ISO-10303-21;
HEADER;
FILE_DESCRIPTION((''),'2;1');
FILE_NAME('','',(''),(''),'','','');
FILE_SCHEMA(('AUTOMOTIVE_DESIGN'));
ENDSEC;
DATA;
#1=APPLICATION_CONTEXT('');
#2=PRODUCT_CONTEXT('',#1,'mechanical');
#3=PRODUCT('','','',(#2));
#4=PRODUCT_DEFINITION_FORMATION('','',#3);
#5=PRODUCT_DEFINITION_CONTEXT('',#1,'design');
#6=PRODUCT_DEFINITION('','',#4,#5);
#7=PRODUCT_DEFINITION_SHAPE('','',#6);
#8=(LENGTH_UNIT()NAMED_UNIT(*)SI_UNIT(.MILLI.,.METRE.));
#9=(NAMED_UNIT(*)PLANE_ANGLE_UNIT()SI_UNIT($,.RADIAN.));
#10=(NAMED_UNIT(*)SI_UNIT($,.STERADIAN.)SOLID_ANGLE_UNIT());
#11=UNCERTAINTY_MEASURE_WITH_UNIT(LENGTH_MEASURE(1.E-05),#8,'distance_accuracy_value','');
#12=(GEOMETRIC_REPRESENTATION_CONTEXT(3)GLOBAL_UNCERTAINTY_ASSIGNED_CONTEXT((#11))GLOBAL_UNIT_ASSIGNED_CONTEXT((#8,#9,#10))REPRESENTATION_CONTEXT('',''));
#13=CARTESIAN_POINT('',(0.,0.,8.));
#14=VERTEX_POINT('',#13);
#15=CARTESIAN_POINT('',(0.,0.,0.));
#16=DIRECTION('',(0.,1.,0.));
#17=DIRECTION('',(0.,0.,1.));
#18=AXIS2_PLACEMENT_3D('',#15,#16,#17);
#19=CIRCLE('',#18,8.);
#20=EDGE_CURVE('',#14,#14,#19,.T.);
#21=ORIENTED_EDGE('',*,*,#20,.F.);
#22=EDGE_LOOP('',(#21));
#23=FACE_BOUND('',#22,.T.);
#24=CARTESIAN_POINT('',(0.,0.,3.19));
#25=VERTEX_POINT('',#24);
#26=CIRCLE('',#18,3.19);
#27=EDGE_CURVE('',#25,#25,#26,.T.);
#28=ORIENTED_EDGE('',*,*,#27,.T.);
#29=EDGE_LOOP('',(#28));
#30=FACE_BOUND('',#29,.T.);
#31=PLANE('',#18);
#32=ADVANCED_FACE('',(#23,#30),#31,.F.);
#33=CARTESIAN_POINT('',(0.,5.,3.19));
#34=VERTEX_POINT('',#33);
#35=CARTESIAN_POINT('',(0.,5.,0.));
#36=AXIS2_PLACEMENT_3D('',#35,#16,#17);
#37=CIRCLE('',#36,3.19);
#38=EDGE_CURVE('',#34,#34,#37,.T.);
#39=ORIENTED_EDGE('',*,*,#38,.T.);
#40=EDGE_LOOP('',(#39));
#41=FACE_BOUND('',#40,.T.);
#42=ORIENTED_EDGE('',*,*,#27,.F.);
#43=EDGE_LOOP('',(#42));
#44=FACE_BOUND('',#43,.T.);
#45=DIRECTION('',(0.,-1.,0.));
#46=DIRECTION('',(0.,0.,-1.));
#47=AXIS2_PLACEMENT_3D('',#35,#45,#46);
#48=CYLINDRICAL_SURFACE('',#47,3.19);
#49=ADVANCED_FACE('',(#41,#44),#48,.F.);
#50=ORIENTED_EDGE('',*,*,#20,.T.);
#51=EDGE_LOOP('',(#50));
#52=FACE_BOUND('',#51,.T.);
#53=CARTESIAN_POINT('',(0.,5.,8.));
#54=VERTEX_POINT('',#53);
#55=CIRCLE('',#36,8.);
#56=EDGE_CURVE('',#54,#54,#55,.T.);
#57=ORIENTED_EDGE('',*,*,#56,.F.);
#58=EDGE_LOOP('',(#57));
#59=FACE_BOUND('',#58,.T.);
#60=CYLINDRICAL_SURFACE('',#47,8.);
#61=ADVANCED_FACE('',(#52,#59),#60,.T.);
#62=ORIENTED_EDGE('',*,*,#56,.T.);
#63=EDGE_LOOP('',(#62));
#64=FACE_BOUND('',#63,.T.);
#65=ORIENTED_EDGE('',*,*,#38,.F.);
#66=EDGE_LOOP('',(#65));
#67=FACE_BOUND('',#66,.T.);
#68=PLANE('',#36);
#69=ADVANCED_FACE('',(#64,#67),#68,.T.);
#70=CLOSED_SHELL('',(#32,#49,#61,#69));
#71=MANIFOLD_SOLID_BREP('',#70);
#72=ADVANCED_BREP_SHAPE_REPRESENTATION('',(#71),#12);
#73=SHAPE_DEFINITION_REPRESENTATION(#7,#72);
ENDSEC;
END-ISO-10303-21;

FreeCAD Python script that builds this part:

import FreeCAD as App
import Part
import Sketcher

V = App.Vector
Q = App.Units.Quantity

doc = App.newDocument("Part")
body = doc.addObject("PartDesign::Body", "Body")

# Sketch on XZ plane
sketch1 = body.newObject("Sketcher::SketchObject", "Sketch")
sketch1.AttachmentSupport = (doc.getObject("XZ_Plane"), [""])
sketch1.MapMode = "FlatFace"
sketch1.addGeometry(Part.Circle(V(0, 0, 0), V(0, 0, 1), 8), False)
sketch1.addConstraint(Sketcher.Constraint("Coincident", 0, 3, -1, 1))
sketch1.addConstraint(Sketcher.Constraint("Diameter", 0, Q("16 mm")))
pad1 = body.newObject("PartDesign::Pad", "Pad")
pad1.Profile = sketch1
pad1.Length = 5
pad1.Reversed = True

# Sketch on XZ plane
sketch2 = body.newObject("Sketcher::SketchObject", "Sketch001")
sketch2.AttachmentSupport = (doc.getObject("XZ_Plane"), [""])
sketch2.MapMode = "FlatFace"
sketch2.addGeometry(Part.Circle(V(0, 0, 0), V(0, 0, 1), 3.2), False)
sketch2.addConstraint(Sketcher.Constraint("Coincident", 0, 3, -1, 1))
sketch2.addConstraint(Sketcher.Constraint("Diameter", 0, Q("6.38 mm")))
pocket1 = body.newObject("PartDesign::Pocket", "Pocket")
pocket1.Profile = sketch2
pocket1.Length = 5

doc.recompute()
